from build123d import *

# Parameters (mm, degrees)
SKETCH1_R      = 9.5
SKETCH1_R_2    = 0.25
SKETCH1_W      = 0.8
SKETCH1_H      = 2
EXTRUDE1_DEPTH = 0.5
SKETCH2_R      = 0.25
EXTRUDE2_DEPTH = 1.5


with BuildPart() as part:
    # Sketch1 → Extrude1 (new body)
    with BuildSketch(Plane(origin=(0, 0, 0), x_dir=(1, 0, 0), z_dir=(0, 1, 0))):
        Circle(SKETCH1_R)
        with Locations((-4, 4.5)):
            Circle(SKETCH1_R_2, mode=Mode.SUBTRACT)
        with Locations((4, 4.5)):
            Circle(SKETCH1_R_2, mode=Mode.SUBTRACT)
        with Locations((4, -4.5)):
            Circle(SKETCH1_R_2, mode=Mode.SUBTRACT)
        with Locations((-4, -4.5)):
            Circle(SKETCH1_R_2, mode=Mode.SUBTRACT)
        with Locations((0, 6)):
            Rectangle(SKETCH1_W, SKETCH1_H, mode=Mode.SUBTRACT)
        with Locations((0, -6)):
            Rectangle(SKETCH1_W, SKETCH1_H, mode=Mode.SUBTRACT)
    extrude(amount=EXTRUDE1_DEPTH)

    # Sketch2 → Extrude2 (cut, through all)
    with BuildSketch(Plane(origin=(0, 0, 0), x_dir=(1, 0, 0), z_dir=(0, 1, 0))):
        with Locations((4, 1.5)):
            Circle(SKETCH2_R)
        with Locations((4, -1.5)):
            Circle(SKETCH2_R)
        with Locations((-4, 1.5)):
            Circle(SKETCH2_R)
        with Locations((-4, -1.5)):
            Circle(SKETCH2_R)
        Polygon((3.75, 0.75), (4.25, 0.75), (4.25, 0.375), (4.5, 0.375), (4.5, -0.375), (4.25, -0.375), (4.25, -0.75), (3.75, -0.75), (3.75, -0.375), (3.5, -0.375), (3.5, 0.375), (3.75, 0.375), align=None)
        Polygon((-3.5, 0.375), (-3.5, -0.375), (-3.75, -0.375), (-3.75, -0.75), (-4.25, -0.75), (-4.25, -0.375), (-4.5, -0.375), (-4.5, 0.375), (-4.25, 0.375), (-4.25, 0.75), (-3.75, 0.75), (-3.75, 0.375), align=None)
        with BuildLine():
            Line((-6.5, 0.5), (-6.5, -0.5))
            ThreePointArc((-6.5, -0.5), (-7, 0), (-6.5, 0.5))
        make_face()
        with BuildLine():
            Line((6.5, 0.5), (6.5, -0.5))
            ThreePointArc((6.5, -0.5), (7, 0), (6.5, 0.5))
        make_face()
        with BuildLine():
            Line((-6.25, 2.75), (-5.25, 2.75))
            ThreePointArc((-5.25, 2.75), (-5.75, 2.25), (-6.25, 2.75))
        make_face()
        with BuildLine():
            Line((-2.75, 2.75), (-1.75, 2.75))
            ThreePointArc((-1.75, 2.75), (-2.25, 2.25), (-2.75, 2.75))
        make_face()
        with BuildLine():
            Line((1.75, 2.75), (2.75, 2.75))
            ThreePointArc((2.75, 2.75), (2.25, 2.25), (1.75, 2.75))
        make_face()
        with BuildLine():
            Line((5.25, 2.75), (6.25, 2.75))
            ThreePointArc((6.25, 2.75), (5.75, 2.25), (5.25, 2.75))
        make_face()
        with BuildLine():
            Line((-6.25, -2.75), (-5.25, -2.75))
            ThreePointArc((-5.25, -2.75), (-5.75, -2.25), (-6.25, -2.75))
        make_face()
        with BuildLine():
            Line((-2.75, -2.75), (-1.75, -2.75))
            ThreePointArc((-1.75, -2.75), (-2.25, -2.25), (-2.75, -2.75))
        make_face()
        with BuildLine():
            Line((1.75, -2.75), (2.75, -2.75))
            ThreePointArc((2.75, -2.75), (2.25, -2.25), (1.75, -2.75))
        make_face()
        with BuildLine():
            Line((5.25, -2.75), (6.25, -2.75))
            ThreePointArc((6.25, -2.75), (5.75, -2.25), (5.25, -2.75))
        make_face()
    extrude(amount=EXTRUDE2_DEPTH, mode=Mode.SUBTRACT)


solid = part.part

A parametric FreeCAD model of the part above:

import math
import FreeCAD as App
import Part
import Sketcher

V = App.Vector
Q = App.Units.Quantity

doc = App.newDocument("Part")
params = doc.addObject("Spreadsheet::Sheet", "Params")
for row, (alias, value) in enumerate([
    ("sketch1_diameter", "19 mm"),
    ("sketch1_diameter2", "0.5 mm"),
    ("sketch1_height", "2 mm"),
    ("sketch1_width", "0.8 mm"),
    ("pad1_length", "0.5 mm"),
    ("sketch2_diameter", "0.5 mm"),
    ("sketch2_radius", "0.5 mm"),
    ("sketch2_width", "0.5 mm"),
    ("sketch2_height", "0.75 mm"),
], start=1):
    params.set(f"A{row}", alias)
    params.set(f"B{row}", "=" + value)
    params.setAlias(f"B{row}", alias)

body = doc.addObject("PartDesign::Body", "Body")

# Sketch on XZ plane
sketch1 = body.newObject("Sketcher::SketchObject", "Sketch")
sketch1.AttachmentSupport = (doc.getObject("XZ_Plane"), [""])
sketch1.MapMode = "FlatFace"
sketch1.addGeometry([
    Part.Circle(V(0, 0, 0), V(0, 0, 1), 9.5),  # 0
    Part.Circle(V(-4, 4.5, 0), V(0, 0, 1), 0.25),  # 1
    Part.LineSegment(V(0.4, 7, 0), V(-0.4, 7, 0)),  # 2
    Part.LineSegment(V(-0.4, 7, 0), V(-0.4, 5, 0)),  # 3
    Part.LineSegment(V(-0.4, 5, 0), V(0.4, 5, 0)),  # 4
    Part.LineSegment(V(0.4, 5, 0), V(0.4, 7, 0)),  # 5
    Part.Circle(V(4, 4.5, 0), V(0, 0, 1), 0.25),  # 6
    Part.Circle(V(-4, -4.5, 0), V(0, 0, 1), 0.25),  # 7
    Part.LineSegment(V(0.4, -5, 0), V(-0.4, -5, 0)),  # 8
    Part.LineSegment(V(-0.4, -5, 0), V(-0.4, -7, 0)),  # 9
    Part.LineSegment(V(-0.4, -7, 0), V(0.4, -7, 0)),  # 10
    Part.LineSegment(V(0.4, -7, 0), V(0.4, -5, 0)),  # 11
    Part.Circle(V(4, -4.5, 0), V(0, 0, 1), 0.25),  # 12
], False)
sketch1.addConstraint([
    Sketcher.Constraint("Coincident", 2, 2, 3, 1),
    Sketcher.Constraint("Coincident", 3, 2, 4, 1),
    Sketcher.Constraint("Coincident", 4, 2, 5, 1),
    Sketcher.Constraint("Coincident", 5, 2, 2, 1),
    Sketcher.Constraint("Coincident", 8, 2, 9, 1),
    Sketcher.Constraint("Coincident", 9, 2, 10, 1),
    Sketcher.Constraint("Coincident", 10, 2, 11, 1),
    Sketcher.Constraint("Coincident", 11, 2, 8, 1),
    Sketcher.Constraint("Horizontal", 2),
    Sketcher.Constraint("Vertical", 3),
    Sketcher.Constraint("Horizontal", 4),
    Sketcher.Constraint("Vertical", 5),
    Sketcher.Constraint("Horizontal", 8),
    Sketcher.Constraint("Vertical", 9),
    Sketcher.Constraint("Horizontal", 10),
    Sketcher.Constraint("Vertical", 11),
    Sketcher.Constraint("Coincident", 0, 3, -1, 1),
    Sketcher.Constraint("Equal", 1, 6),
    Sketcher.Constraint("Equal", 6, 7),
    Sketcher.Constraint("Equal", 7, 12),
    Sketcher.Constraint("Symmetric", 6, 3, 7, 3, -1, 1),
    Sketcher.Constraint("Symmetric", 1, 3, 12, 3, -1, 1),
    Sketcher.Constraint("Symmetric", 4, 2, 8, 2, -1, 1),
    Sketcher.Constraint("Symmetric", 2, 2, 10, 2, -1, 1),
    Sketcher.Constraint("Symmetric", 1, 3, 6, 3, -2),
    Sketcher.Constraint("Vertical", 3, 2, 8, 2),
    Sketcher.Constraint("Diameter", 0, Q("19 mm")),
    Sketcher.Constraint("Diameter", 1, Q("0.5 mm")),
    Sketcher.Constraint("DistanceY", 3, 2, 3, 1, Q("2 mm")),
    Sketcher.Constraint("DistanceX", 2, 2, 2, 1, Q("0.8 mm")),
    Sketcher.Constraint("DistanceX", 1, 3, -1, 1, Q("4 mm")),
    Sketcher.Constraint("DistanceY", -1, 1, 2, 2, Q("7 mm")),
    Sketcher.Constraint("DistanceY", 7, 3, 1, 3, Q("9 mm")),
])
sketch1.setExpression("Constraints[26]", "Params.sketch1_diameter")
sketch1.setExpression("Constraints[27]", "Params.sketch1_diameter2")
sketch1.setExpression("Constraints[28]", "Params.sketch1_height")
sketch1.setExpression("Constraints[29]", "Params.sketch1_width")
pad1 = body.newObject("PartDesign::Pad", "Pad")
pad1.Profile = sketch1
pad1.setExpression("Length", "Params.pad1_length")
pad1.Reversed = True

# Sketch on XZ plane
sketch2 = body.newObject("Sketcher::SketchObject", "Sketch001")
sketch2.AttachmentSupport = (doc.getObject("XZ_Plane"), [""])
sketch2.MapMode = "FlatFace"
sketch2.addGeometry([
    Part.Circle(V(4, -1.5, 0), V(0, 0, 1), 0.25),  # 0
    Part.Circle(V(4, 1.5, 0), V(0, 0, 1), 0.25),  # 1
    Part.Circle(V(-4, -1.5, 0), V(0, 0, 1), 0.25),  # 2
    Part.Circle(V(-4, 1.5, 0), V(0, 0, 1), 0.25),  # 3
    Part.LineSegment(V(4.25, -0.75, 0), V(3.75, -0.75, 0)),  # 4
    Part.LineSegment(V(3.75, -0.75, 0), V(3.75, -0.375, 0)),  # 5
    Part.LineSegment(V(3.75, -0.375, 0), V(3.5, -0.375, 0)),  # 6
    Part.LineSegment(V(3.5, -0.375, 0), V(3.5, 0.375, 0)),  # 7
    Part.LineSegment(V(3.5, 0.375, 0), V(3.75, 0.375, 0)),  # 8
    Part.LineSegment(V(3.75, 0.375, 0), V(3.75, 0.75, 0)),  # 9
    Part.LineSegment(V(3.75, 0.75, 0), V(4.25, 0.75, 0)),  # 10
    Part.LineSegment(V(4.25, 0.75, 0), V(4.25, 0.375, 0)),  # 11
    Part.LineSegment(V(4.25, 0.375, 0), V(4.5, 0.375, 0)),  # 12
    Part.LineSegment(V(4.5, 0.375, 0), V(4.5, -0.375, 0)),  # 13
    Part.LineSegment(V(4.5, -0.375, 0), V(4.25, -0.375, 0)),  # 14
    Part.LineSegment(V(4.25, -0.375, 0), V(4.25, -0.75, 0)),  # 15
    Part.LineSegment(V(-3.5, 0.375, 0), V(-3.5, -0.375, 0)),  # 16
    Part.LineSegment(V(-3.5, -0.375, 0), V(-3.75, -0.375, 0)),  # 17
    Part.LineSegment(V(-3.75, -0.375, 0), V(-3.75, -0.75, 0)),  # 18
    Part.LineSegment(V(-3.75, -0.75, 0), V(-4.25, -0.75, 0)),  # 19
    Part.LineSegment(V(-4.25, -0.75, 0), V(-4.25, -0.375, 0)),  # 20
    Part.LineSegment(V(-4.25, -0.375, 0), V(-4.5, -0.375, 0)),  # 21
    Part.LineSegment(V(-4.5, -0.375, 0), V(-4.5, 0.375, 0)),  # 22
    Part.LineSegment(V(-4.5, 0.375, 0), V(-4.25, 0.375, 0)),  # 23
    Part.LineSegment(V(-4.25, 0.375, 0), V(-4.25, 0.75, 0)),  # 24
    Part.LineSegment(V(-4.25, 0.75, 0), V(-3.75, 0.75, 0)),  # 25
    Part.LineSegment(V(-3.75, 0.75, 0), V(-3.75, 0.375, 0)),  # 26
    Part.LineSegment(V(-3.75, 0.375, 0), V(-3.5, 0.375, 0)),  # 27
    Part.LineSegment(V(-6.5, 0.5, 0), V(-6.5, -0.5, 0)),  # 28
    Part.ArcOfCircle(Part.Circle(V(-6.5, 0, 0), V(0, 0, 1), 0.5), math.radians(90), math.radians(270)),  # 29
    Part.LineSegment(V(6.5, -0.5, 0), V(6.5, 0.5, 0)),  # 30
    Part.ArcOfCircle(Part.Circle(V(6.5, 0, 0), V(0, 0, 1), 0.5), math.radians(-90), math.radians(90)),  # 31
    Part.LineSegment(V(-5.25, -2.75, 0), V(-6.25, -2.75, 0)),  # 32
    Part.ArcOfCircle(Part.Circle(V(-5.75, -2.75, 0), V(0, 0, 1), 0.5), math.radians(0), math.radians(180)),  # 33
    Part.LineSegment(V(-1.75, -2.75, 0), V(-2.75, -2.75, 0)),  # 34
    Part.ArcOfCircle(Part.Circle(V(-2.25, -2.75, 0), V(0, 0, 1), 0.5), math.radians(0), math.radians(180)),  # 35
    Part.LineSegment(V(2.75, -2.75, 0), V(1.75, -2.75, 0)),  # 36
    Part.ArcOfCircle(Part.Circle(V(2.25, -2.75, 0), V(0, 0, 1), 0.5), math.radians(0), math.radians(180)),  # 37
    Part.LineSegment(V(6.25, -2.75, 0), V(5.25, -2.75, 0)),  # 38
    Part.ArcOfCircle(Part.Circle(V(5.75, -2.75, 0), V(0, 0, 1), 0.5), math.radians(0), math.radians(180)),  # 39
    Part.LineSegment(V(-6.25, 2.75, 0), V(-5.25, 2.75, 0)),  # 40
    Part.ArcOfCircle(Part.Circle(V(-5.75, 2.75, 0), V(0, 0, 1), 0.5), math.radians(180), math.radians(360)),  # 41
    Part.LineSegment(V(-2.75, 2.75, 0), V(-1.75, 2.75, 0)),  # 42
    Part.ArcOfCircle(Part.Circle(V(-2.25, 2.75, 0), V(0, 0, 1), 0.5), math.radians(180), math.radians(360)),  # 43
    Part.LineSegment(V(1.75, 2.75, 0), V(2.75, 2.75, 0)),  # 44
    Part.ArcOfCircle(Part.Circle(V(2.25, 2.75, 0), V(0, 0, 1), 0.5), math.radians(180), math.radians(360)),  # 45
    Part.LineSegment(V(5.25, 2.75, 0), V(6.25, 2.75, 0)),  # 46
    Part.ArcOfCircle(Part.Circle(V(5.75, 2.75, 0), V(0, 0, 1), 0.5), math.radians(180), math.radians(360)),  # 47
], False)
sketch2.addConstraint([
    Sketcher.Constraint("Coincident", 4, 2, 5, 1),
    Sketcher.Constraint("Coincident", 5, 2, 6, 1),
    Sketcher.Constraint("Coincident", 6, 2, 7, 1),
    Sketcher.Constraint("Coincident", 7, 2, 8, 1),
    Sketcher.Constraint("Coincident", 8, 2, 9, 1),
    Sketcher.Constraint("Coincident", 9, 2, 10, 1),
    Sketcher.Constraint("Coincident", 10, 2, 11, 1),
    Sketcher.Constraint("Coincident", 11, 2, 12, 1),
    Sketcher.Constraint("Coincident", 12, 2, 13, 1),
    Sketcher.Constraint("Coincident", 13, 2, 14, 1),
    Sketcher.Constraint("Coincident", 14, 2, 15, 1),
    Sketcher.Constraint("Coincident", 15, 2, 4, 1),
    Sketcher.Constraint("Coincident", 16, 2, 17, 1),
    Sketcher.Constraint("Coincident", 17, 2, 18, 1),
    Sketcher.Constraint("Coincident", 18, 2, 19, 1),
    Sketcher.Constraint("Coincident", 19, 2, 20, 1),
    Sketcher.Constraint("Coincident", 20, 2, 21, 1),
    Sketcher.Constraint("Coincident", 21, 2, 22, 1),
    Sketcher.Constraint("Coincident", 22, 2, 23, 1),
    Sketcher.Constraint("Coincident", 23, 2, 24, 1),
    Sketcher.Constraint("Coincident", 24, 2, 25, 1),
    Sketcher.Constraint("Coincident", 25, 2, 26, 1),
    Sketcher.Constraint("Coincident", 26, 2, 27, 1),
    Sketcher.Constraint("Coincident", 27, 2, 16, 1),
    Sketcher.Constraint("Coincident", 28, 1, 29, 1),
    Sketcher.Constraint("Coincident", 29, 2, 28, 2),
    Sketcher.Constraint("Coincident", 30, 1, 31, 1),
    Sketcher.Constraint("Coincident", 31, 2, 30, 2),
    Sketcher.Constraint("Coincident", 32, 1, 33, 1),
    Sketcher.Constraint("Coincident", 33, 2, 32, 2),
    Sketcher.Constraint("Coincident", 34, 1, 35, 1),
    Sketcher.Constraint("Coincident", 35, 2, 34, 2),
    Sketcher.Constraint("Coincident", 36, 1, 37, 1),
    Sketcher.Constraint("Coincident", 37, 2, 36, 2),
    Sketcher.Constraint("Coincident", 38, 1, 39, 1),
    Sketcher.Constraint("Coincident", 39, 2, 38, 2),
    Sketcher.Constraint("Coincident", 40, 1, 41, 1),
    Sketcher.Constraint("Coincident", 41, 2, 40, 2),
    Sketcher.Constraint("Coincident", 42, 1, 43, 1),
    Sketcher.Constraint("Coincident", 43, 2, 42, 2),
    Sketcher.Constraint("Coincident", 44, 1, 45, 1),
    Sketcher.Constraint("Coincident", 45, 2, 44, 2),
    Sketcher.Constraint("Coincident", 46, 1, 47, 1),
    Sketcher.Constraint("Coincident", 47, 2, 46, 2),
    Sketcher.Constraint("Horizontal", 4),
    Sketcher.Constraint("Vertical", 5),
    Sketcher.Constraint("Horizontal", 6),
    Sketcher.Constraint("Vertical", 7),
    Sketcher.Constraint("Horizontal", 8),
    Sketcher.Constraint("Vertical", 9),
    Sketcher.Constraint("Horizontal", 10),
    Sketcher.Constraint("Vertical", 11),
    Sketcher.Constraint("Horizontal", 12),
    Sketcher.Constraint("Vertical", 13),
    Sketcher.Constraint("Horizontal", 14),
    Sketcher.Constraint("Vertical", 15),
    Sketcher.Constraint("Vertical", 16),
    Sketcher.Constraint("Horizontal", 17),
    Sketcher.Constraint("Vertical", 18),
    Sketcher.Constraint("Horizontal", 19),
    Sketcher.Constraint("Vertical", 20),
    Sketcher.Constraint("Horizontal", 21),
    Sketcher.Constraint("Vertical", 22),
    Sketcher.Constraint("Horizontal", 23),
    Sketcher.Constraint("Vertical", 24),
    Sketcher.Constraint("Horizontal", 25),
    Sketcher.Constraint("Vertical", 26),
    Sketcher.Constraint("Horizontal", 27),
    Sketcher.Constraint("Vertical", 28),
    Sketcher.Constraint("Vertical", 30),
    Sketcher.Constraint("Horizontal", 32),
    Sketcher.Constraint("Horizontal", 34),
    Sketcher.Constraint("Horizontal", 36),
    Sketcher.Constraint("Horizontal", 38),
    Sketcher.Constraint("Horizontal", 40),
    Sketcher.Constraint("Horizontal", 42),
    Sketcher.Constraint("Horizontal", 44),
    Sketcher.Constraint("Horizontal", 46),
    Sketcher.Constraint("Equal", 0, 1),
    Sketcher.Constraint("Equal", 1, 2),
    Sketcher.Constraint("Equal", 2, 3),
    Sketcher.Constraint("Equal", 29, 31),
    Sketcher.Constraint("Equal", 31, 33),
    Sketcher.Constraint("Equal", 33, 35),
    Sketcher.Constraint("Equal", 35, 37),
    Sketcher.Constraint("Equal", 37, 39),
    Sketcher.Constraint("Equal", 39, 41),
    Sketcher.Constraint("Equal", 41, 43),
    Sketcher.Constraint("Equal", 43, 45),
    Sketcher.Constraint("Equal", 45, 47),
    Sketcher.Constraint("Symmetric", 1, 3, 2, 3, -1, 1),
    Sketcher.Constraint("Symmetric", 0, 3, 3, 3, -1, 1),
    Sketcher.Constraint("Symmetric", 29, 3, 31, 3, -1, 1),
    Sketcher.Constraint("Symmetric", 39, 3, 41, 3, -1, 1),
    Sketcher.Constraint("Symmetric", 37, 3, 43, 3, -1, 1),
    Sketcher.Constraint("Symmetric", 35, 3, 45, 3, -1, 1),
    Sketcher.Constraint("Symmetric", 33, 3, 47, 3, -1, 1),
    Sketcher.Constraint("Symmetric", 7, 2, 16, 2, -1, 1),
    Sketcher.Constraint("Symmetric", 9, 2, 18, 2, -1, 1),
    Sketcher.Constraint("Symmetric", 11, 2, 20, 2, -1, 1),
    Sketcher.Constraint("Symmetric", 13, 2, 22, 2, -1, 1),
    Sketcher.Constraint("Symmetric", 15, 2, 24, 2, -1, 1),
    Sketcher.Constraint("Symmetric", 5, 2, 26, 2, -1, 1),
    Sketcher.Constraint("Symmetric", 0, 3, 2, 3, -2),
    Sketcher.Constraint("Symmetric", 35, 3, 37, 3, -2),
    Sketcher.Constraint("Symmetric", 33, 3, 39, 3, -2),
    Sketcher.Constraint("Symmetric", 5, 2, 17, 2, -2),
    Sketcher.Constraint("Symmetric", 15, 2, 19, 2, -2),
    Sketcher.Constraint("Symmetric", 29, 2, 30, 1, -2),
    Sketcher.Constraint("Horizontal", 33, 3, 35, 3),
    Sketcher.Constraint("Horizontal", 8, 2, 11, 2),
    Sketcher.Constraint("Horizontal", 6, 2, 13, 2),
    Sketcher.Constraint("Horizontal", 39, 3, 32, 1),
    Sketcher.Constraint("Horizontal", 33, 2, 34, 1),
    Sketcher.Constraint("Horizontal", 35, 2, 36, 1),
    Sketcher.Constraint("Horizontal", 37, 2, 38, 1),
    Sketcher.Constraint("Horizontal", 47, 3, 40, 1),
    Sketcher.Constraint("Horizontal", 41, 2, 42, 1),
    Sketcher.Constraint("Horizontal", 43, 2, 44, 1),
    Sketcher.Constraint("Horizontal", 45, 2, 46, 1),
    Sketcher.Constraint("Vertical", 29, 3, 28, 1),
    Sketcher.Constraint("Equal", 8, 12),
    Sketcher.Constraint("Diameter", 0, Q("0.5 mm")),
    Sketcher.Constraint("Radius", 29, Q("0.5 mm")),
    Sketcher.Constraint("DistanceX", 4, 2, 4, 1, Q("0.5 mm")),
    Sketcher.Constraint("DistanceX", -1, 1, 0, 3, Q("4 mm")),
    Sketcher.Constraint("DistanceY", 0, 3, 1, 3, Q("3 mm")),
    Sketcher.Constraint("DistanceX", 29, 3, 31, 3, Q("13 mm")),
    Sketcher.Constraint("DistanceX", 35, 3, 39, 3, Q("8 mm")),
    Sketcher.Constraint("DistanceY", 37, 3, 4, 2, Q("2 mm")),
    Sketcher.Constraint("DistanceX", 4, 2, 39, 3, Q("2 mm")),
    Sketcher.Constraint("DistanceX", 7, 2, 12, 2, Q("1 mm")),
    Sketcher.Constraint("DistanceX", 29, 3, 16, 2, Q("3 mm")),
    Sketcher.Constraint("DistanceY", 7, 1, 7, 2, Q("0.75 mm")),
    Sketcher.Constraint("DistanceY", 33, 3, 41, 3, Q("5.5 mm")),
])
sketch2.setExpression("Constraints[122]", "Params.sketch2_diameter")
sketch2.setExpression("Constraints[123]", "Params.sketch2_radius")
sketch2.setExpression("Constraints[124]", "Params.sketch2_width")
sketch2.setExpression("Constraints[133]", "Params.sketch2_height")
pocket1 = body.newObject("PartDesign::Pocket", "Pocket")
pocket1.Profile = sketch2
pocket1.Type = "ThroughAll"

doc.recompute()
